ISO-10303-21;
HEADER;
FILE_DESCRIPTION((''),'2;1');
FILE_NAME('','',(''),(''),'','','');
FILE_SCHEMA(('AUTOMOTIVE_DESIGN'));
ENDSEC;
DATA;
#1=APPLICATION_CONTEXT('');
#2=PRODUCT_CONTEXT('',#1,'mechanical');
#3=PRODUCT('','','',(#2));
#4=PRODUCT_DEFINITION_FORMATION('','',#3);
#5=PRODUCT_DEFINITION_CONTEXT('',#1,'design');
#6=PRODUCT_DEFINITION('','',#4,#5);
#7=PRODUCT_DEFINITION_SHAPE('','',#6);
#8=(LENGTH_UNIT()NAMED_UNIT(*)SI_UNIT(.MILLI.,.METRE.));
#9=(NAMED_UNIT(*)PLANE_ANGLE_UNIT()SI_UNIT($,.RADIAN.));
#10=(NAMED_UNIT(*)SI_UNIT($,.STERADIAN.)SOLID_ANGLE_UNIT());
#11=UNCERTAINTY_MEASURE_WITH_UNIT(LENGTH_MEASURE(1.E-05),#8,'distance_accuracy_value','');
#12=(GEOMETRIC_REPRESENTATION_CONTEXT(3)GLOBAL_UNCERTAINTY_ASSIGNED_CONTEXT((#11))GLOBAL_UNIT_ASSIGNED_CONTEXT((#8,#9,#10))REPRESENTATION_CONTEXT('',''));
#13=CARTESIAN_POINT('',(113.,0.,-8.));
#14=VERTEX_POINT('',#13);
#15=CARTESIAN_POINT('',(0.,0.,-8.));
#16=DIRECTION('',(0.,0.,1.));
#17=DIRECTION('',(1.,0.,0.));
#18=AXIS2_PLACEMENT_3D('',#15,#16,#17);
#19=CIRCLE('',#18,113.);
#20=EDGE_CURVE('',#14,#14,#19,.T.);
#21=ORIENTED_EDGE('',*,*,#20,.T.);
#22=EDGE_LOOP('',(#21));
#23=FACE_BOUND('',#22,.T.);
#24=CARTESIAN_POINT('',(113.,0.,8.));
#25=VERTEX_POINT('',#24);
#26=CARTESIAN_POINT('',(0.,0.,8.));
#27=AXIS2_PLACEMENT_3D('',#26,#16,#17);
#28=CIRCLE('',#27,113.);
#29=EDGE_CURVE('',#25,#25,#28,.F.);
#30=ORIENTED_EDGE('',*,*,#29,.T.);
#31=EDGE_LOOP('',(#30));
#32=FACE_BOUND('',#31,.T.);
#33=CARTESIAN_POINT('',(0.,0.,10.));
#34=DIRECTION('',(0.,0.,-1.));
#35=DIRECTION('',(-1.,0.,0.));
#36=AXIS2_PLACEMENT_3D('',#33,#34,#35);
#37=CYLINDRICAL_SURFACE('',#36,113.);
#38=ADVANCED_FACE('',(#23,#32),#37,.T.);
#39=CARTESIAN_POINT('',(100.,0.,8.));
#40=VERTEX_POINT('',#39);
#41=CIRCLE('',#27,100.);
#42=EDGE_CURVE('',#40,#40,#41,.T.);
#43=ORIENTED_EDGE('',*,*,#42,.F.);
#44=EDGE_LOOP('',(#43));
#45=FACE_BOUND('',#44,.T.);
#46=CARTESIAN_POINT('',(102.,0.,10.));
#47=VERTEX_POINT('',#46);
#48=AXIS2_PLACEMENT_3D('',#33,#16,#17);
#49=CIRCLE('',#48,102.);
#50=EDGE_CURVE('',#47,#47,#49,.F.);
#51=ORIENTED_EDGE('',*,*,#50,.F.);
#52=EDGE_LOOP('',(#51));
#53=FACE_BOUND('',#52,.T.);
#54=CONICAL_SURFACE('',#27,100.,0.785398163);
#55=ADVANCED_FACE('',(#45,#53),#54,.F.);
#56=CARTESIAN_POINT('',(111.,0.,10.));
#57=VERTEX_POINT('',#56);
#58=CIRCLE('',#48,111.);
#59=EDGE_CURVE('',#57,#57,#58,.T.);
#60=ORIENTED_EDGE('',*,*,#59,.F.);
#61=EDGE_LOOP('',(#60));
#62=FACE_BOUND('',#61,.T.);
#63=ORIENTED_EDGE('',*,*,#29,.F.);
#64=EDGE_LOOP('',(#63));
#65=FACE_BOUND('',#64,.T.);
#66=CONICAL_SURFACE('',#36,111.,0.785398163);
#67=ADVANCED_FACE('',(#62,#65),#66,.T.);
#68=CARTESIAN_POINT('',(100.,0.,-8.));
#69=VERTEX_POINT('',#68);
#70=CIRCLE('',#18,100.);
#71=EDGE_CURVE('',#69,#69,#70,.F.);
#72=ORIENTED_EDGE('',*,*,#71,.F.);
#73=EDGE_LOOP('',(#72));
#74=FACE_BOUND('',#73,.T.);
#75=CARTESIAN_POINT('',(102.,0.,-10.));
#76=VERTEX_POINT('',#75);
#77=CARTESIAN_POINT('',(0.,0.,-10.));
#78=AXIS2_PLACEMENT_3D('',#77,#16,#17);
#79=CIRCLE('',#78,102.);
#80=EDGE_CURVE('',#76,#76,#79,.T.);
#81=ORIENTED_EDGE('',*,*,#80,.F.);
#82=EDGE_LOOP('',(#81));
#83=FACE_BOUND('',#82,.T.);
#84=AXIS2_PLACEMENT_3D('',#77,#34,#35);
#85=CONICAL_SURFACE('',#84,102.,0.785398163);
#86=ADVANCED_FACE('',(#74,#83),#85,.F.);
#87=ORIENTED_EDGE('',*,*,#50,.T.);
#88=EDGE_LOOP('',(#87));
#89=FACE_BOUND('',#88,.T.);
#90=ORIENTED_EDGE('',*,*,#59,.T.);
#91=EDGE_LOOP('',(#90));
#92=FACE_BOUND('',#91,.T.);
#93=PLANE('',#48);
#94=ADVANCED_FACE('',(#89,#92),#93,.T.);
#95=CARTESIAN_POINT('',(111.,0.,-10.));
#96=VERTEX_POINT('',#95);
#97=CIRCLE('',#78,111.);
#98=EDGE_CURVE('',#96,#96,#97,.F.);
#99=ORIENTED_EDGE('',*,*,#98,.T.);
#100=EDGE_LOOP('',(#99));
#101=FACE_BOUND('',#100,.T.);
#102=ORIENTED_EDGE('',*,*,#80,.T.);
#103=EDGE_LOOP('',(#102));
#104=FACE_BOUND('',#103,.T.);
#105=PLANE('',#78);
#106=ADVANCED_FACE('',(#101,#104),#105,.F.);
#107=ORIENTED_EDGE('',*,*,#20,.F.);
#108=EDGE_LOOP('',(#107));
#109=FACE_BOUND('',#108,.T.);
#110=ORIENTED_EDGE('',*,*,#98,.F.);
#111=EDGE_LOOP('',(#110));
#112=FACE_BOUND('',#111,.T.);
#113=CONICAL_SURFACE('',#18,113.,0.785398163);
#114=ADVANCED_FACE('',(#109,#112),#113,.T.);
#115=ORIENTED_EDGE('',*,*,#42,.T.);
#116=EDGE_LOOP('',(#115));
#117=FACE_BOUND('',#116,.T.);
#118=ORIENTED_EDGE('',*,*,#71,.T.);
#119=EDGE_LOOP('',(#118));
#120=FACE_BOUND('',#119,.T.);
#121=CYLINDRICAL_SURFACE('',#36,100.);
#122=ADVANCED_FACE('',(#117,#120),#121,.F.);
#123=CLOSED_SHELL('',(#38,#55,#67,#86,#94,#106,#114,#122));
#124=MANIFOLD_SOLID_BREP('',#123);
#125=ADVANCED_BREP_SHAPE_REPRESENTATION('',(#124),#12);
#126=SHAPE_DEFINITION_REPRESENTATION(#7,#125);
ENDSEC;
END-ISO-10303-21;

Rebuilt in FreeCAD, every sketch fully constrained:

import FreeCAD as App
import Part
import Sketcher
Q = App.Units.Quantity


def edges_at(feature, points):
    """Names of the edges that pass closest to the given points."""
    edges = feature.Shape.Edges
    near = lambda p: min(range(len(edges)), key=lambda i: edges[i].distToShape(Part.Vertex(*p))[0])
    return sorted({f"Edge{near(p) + 1}" for p in points})

doc = App.newDocument("Part")
body = doc.addObject("PartDesign::Body", "Body")

sketch1 = body.newObject("Sketcher::SketchObject", "Sketch")
sketch1.AttachmentSupport = (doc.getObject("XY_Plane"), [""])
sketch1.MapMode = "FlatFace"
sketch1.addGeometry([
    Part.Circle(App.Vector(0, 0, 0), App.Vector(0, 0, 1), 113),
    Part.Circle(App.Vector(0, 0, 0), App.Vector(0, 0, 1), 100),
], False)
sketch1.addConstraint([
    Sketcher.Constraint("Coincident", 0, 3, -1, 1),
    Sketcher.Constraint("Coincident", 1, 3, -1, 1),
    Sketcher.Constraint("Diameter", 0, Q("226 mm")),
    Sketcher.Constraint("Diameter", 1, Q("200 mm")),
])
pad1 = body.newObject("PartDesign::Pad", "Pad")
pad1.Profile = sketch1
pad1.Length = 20
pad1.Midplane = True
doc.recompute()

chamfer = body.newObject("PartDesign::Chamfer", "Chamfer")
chamfer.Base = (pad1, edges_at(pad1, [
    (-113, 0, -10),
    (-113, 0, 10),
    (-100, 0, -10),
    (-100, 0, 10),
]))
chamfer.Size = 2

doc.recompute()
